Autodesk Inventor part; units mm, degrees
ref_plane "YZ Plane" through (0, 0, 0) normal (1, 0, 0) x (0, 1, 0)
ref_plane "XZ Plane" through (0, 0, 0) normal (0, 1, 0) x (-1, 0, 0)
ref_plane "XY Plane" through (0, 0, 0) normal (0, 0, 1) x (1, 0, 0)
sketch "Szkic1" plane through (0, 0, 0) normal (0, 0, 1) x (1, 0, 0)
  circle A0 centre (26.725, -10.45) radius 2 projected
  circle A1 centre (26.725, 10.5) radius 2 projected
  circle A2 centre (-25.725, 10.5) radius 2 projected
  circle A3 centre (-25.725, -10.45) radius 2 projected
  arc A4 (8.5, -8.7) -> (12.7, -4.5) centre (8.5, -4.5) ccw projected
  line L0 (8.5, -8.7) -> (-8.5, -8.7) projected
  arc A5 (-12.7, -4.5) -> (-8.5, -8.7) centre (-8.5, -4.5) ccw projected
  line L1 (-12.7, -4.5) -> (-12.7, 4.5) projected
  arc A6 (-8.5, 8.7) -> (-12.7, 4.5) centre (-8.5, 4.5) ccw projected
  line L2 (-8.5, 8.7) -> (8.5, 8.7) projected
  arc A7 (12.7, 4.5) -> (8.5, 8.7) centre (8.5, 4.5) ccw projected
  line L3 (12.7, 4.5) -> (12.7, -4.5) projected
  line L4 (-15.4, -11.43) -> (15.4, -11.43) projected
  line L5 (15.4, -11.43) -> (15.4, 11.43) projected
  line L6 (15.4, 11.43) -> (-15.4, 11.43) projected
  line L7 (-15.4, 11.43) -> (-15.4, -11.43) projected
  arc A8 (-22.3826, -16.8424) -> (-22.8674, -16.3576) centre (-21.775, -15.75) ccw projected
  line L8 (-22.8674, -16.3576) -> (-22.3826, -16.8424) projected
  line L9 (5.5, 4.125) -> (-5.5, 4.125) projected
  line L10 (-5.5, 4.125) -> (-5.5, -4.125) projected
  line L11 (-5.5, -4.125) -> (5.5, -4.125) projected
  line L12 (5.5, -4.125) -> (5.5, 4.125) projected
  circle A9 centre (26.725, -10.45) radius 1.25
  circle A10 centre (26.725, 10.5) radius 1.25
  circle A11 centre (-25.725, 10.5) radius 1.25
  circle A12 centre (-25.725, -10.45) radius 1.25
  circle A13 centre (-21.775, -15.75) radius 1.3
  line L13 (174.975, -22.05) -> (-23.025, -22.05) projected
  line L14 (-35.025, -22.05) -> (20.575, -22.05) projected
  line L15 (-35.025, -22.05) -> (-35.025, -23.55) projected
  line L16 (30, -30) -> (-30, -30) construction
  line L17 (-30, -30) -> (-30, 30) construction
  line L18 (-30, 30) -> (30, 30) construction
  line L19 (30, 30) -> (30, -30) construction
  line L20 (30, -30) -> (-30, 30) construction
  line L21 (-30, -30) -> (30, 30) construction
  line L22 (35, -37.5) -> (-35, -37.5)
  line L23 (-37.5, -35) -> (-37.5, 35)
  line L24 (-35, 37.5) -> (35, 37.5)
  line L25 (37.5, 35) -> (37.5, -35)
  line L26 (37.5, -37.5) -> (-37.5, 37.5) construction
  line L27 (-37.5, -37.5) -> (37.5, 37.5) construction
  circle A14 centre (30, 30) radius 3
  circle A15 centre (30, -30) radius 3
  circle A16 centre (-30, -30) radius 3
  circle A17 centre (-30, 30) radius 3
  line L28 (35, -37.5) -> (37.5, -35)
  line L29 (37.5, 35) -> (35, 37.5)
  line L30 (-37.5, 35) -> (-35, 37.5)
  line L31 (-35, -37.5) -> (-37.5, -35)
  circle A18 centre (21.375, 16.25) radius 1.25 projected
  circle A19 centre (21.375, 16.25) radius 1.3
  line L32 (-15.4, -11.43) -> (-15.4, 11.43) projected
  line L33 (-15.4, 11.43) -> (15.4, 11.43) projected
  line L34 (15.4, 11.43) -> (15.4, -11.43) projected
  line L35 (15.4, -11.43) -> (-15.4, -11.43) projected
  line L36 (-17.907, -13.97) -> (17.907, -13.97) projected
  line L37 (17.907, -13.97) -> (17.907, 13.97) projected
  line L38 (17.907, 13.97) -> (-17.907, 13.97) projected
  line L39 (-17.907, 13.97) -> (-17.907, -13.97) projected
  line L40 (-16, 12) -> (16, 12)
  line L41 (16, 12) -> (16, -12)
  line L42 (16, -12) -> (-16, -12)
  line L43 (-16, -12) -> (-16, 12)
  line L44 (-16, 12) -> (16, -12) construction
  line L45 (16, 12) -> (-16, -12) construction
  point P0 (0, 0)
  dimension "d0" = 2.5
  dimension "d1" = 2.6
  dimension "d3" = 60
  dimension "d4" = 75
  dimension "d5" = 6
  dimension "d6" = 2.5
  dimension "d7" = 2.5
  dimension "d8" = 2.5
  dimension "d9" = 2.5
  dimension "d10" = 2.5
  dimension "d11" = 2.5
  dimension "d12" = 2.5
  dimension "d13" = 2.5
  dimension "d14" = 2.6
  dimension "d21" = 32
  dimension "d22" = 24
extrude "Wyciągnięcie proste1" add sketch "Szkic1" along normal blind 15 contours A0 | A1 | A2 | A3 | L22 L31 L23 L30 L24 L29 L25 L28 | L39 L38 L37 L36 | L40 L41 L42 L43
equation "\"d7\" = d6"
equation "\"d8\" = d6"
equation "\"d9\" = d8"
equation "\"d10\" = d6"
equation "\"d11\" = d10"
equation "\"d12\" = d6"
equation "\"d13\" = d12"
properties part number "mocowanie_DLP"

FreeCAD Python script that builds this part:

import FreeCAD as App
import Part
import Sketcher

V = App.Vector
Q = App.Units.Quantity

doc = App.newDocument("Part")
params = doc.addObject("Spreadsheet::Sheet", "Params")
for row, (alias, value) in enumerate([
    ("sketch1_diameter", "6 mm"),
    ("sketch1_diameter2", "2.5 mm"),
    ("sketch1_diameter3", "2.6 mm"),
    ("sketch1_width", "70 mm"),
    ("sketch1_width2", "30.8 mm"),
    ("pad1_length", "15 mm"),
], start=1):
    params.set(f"A{row}", alias)
    params.set(f"B{row}", "=" + value)
    params.setAlias(f"B{row}", alias)

body = doc.addObject("PartDesign::Body", "Body")

# Sketch on XY plane
sketch1 = doc.addObject("Sketcher::SketchObject", "Sketch")
body.addObject(sketch1)
sketch1.AttachmentSupport = (doc.XY_Plane, [""])
sketch1.MapMode = "FlatFace"
sketch1.addGeometry([
    Part.LineSegment(V(-35, -37.5, 0), V(35, -37.5, 0)),  # 0
    Part.LineSegment(V(35, -37.5, 0), V(37.5, -35, 0)),  # 1
    Part.LineSegment(V(37.5, -35, 0), V(37.5, 35, 0)),  # 2
    Part.LineSegment(V(37.5, 35, 0), V(35, 37.5, 0)),  # 3
    Part.LineSegment(V(35, 37.5, 0), V(-35, 37.5, 0)),  # 4
    Part.LineSegment(V(-35, 37.5, 0), V(-37.5, 35, 0)),  # 5
    Part.LineSegment(V(-37.5, 35, 0), V(-37.5, -35, 0)),  # 6
    Part.LineSegment(V(-37.5, -35, 0), V(-35, -37.5, 0)),  # 7
    Part.Circle(V(26.725, -10.45, 0), V(0, 0, 1), 1.25),  # 8
    Part.Circle(V(-30, -30, 0), V(0, 0, 1), 3),  # 9
    Part.Circle(V(-21.775, -15.75, 0), V(0, 0, 1), 1.3),  # 10
    Part.Circle(V(30, -30, 0), V(0, 0, 1), 3),  # 11
    Part.Circle(V(30, 30, 0), V(0, 0, 1), 3),  # 12
    Part.Circle(V(-30, 30, 0), V(0, 0, 1), 3),  # 13
    Part.Circle(V(21.375, 16.25, 0), V(0, 0, 1), 1.3),  # 14
    Part.Circle(V(-25.725, -10.45, 0), V(0, 0, 1), 1.25),  # 15
    Part.Circle(V(-25.725, 10.5, 0), V(0, 0, 1), 1.25),  # 16
    Part.Circle(V(26.725, 10.5, 0), V(0, 0, 1), 1.25),  # 17
    Part.LineSegment(V(15.4, -11.43, 0), V(-15.4, -11.43, 0)),  # 18
    Part.LineSegment(V(-15.4, -11.43, 0), V(-15.4, 11.43, 0)),  # 19
    Part.LineSegment(V(-15.4, 11.43, 0), V(15.4, 11.43, 0)),  # 20
    Part.LineSegment(V(15.4, 11.43, 0), V(15.4, -11.43, 0)),  # 21
], False)
sketch1.addConstraint([
    Sketcher.Constraint("Coincident", 0, 2, 1, 1),
    Sketcher.Constraint("Coincident", 1, 2, 2, 1),
    Sketcher.Constraint("Coincident", 2, 2, 3, 1),
    Sketcher.Constraint("Coincident", 3, 2, 4, 1),
    Sketcher.Constraint("Coincident", 4, 2, 5, 1),
    Sketcher.Constraint("Coincident", 5, 2, 6, 1),
    Sketcher.Constraint("Coincident", 6, 2, 7, 1),
    Sketcher.Constraint("Coincident", 7, 2, 0, 1),
    Sketcher.Constraint("Coincident", 18, 2, 19, 1),
    Sketcher.Constraint("Coincident", 19, 2, 20, 1),
    Sketcher.Constraint("Coincident", 20, 2, 21, 1),
    Sketcher.Constraint("Coincident", 21, 2, 18, 1),
    Sketcher.Constraint("Horizontal", 0),
    Sketcher.Constraint("Vertical", 2),
    Sketcher.Constraint("Horizontal", 4),
    Sketcher.Constraint("Vertical", 6),
    Sketcher.Constraint("Horizontal", 18),
    Sketcher.Constraint("Vertical", 19),
    Sketcher.Constraint("Horizontal", 20),
    Sketcher.Constraint("Vertical", 21),
    Sketcher.Constraint("Equal", 9, 11),
    Sketcher.Constraint("Equal", 11, 12),
    Sketcher.Constraint("Equal", 12, 13),
    Sketcher.Constraint("Equal", 10, 14),
    Sketcher.Constraint("Equal", 8, 15),
    Sketcher.Constraint("Equal", 15, 16),
    Sketcher.Constraint("Equal", 16, 17),
    Sketcher.Constraint("Symmetric", 9, 3, 12, 3, -1, 1),
    Sketcher.Constraint("Symmetric", 11, 3, 13, 3, -1, 1),
    Sketcher.Constraint("Symmetric", 0, 2, 4, 2, -1, 1),
    Sketcher.Constraint("Symmetric", 1, 2, 5, 2, -1, 1),
    Sketcher.Constraint("Symmetric", 18, 2, 20, 2, -1, 1),
    Sketcher.Constraint("Symmetric", 9, 3, 11, 3, -2),
    Sketcher.Constraint("Perpendicular", 1, 3),
    Sketcher.Constraint("Perpendicular", 5, 7),
    Sketcher.Constraint("Horizontal", 8, 3, 15, 3),
    Sketcher.Constraint("Horizontal", 16, 3, 17, 3),
    Sketcher.Constraint("Horizontal", 2, 2, 5, 2),
    Sketcher.Constraint("Horizontal", 1, 2, 6, 2),
    Sketcher.Constraint("Vertical", 15, 3, 16, 3),
    Sketcher.Constraint("Vertical", 8, 3, 17, 3),
    Sketcher.Constraint("Vertical", 0, 2, 3, 2),
    Sketcher.Constraint("Equal", 4, 2),
    Sketcher.Constraint("Diameter", 9, Q("6 mm")),
    Sketcher.Constraint("Diameter", 8, Q("2.5 mm")),
    Sketcher.Constraint("Diameter", 10, Q("2.6 mm")),
    Sketcher.Constraint("DistanceX", 9, 3, 11, 3, Q("60 mm")),
    Sketcher.Constraint("DistanceY", 11, 3, 12, 3, Q("60 mm")),
    Sketcher.Constraint("DistanceY", 10, 3, 14, 3, Q("32 mm")),
    Sketcher.Constraint("DistanceX", 0, 2, 1, 2, Q("2.5 mm")),
    Sketcher.Constraint("DistanceX", 0, 1, 0, 2, Q("70 mm")),
    Sketcher.Constraint("DistanceX", 18, 2, 18, 1, Q("30.8 mm")),
    Sketcher.Constraint("DistanceY", 0, 2, 17, 3, Q("48 mm")),
    Sketcher.Constraint("DistanceY", 19, 1, 19, 2, Q("22.86 mm")),
    Sketcher.Constraint("DistanceX", 10, 3, 8, 3, Q("48.5 mm")),
    Sketcher.Constraint("DistanceY", 10, 3, 8, 3, Q("5.3 mm")),
    Sketcher.Constraint("DistanceX", 15, 3, 14, 3, Q("47.1 mm")),
    Sketcher.Constraint("DistanceY", 8, 3, -1, 1, Q("10.45 mm")),
    Sketcher.Constraint("DistanceX", 14, 3, 8, 3, Q("5.35 mm")),
    Sketcher.Constraint("DistanceX", -1, 1, 8, 3, Q("26.725 mm")),
])
sketch1.setExpression("Constraints[43]", "Params.sketch1_diameter")
sketch1.setExpression("Constraints[44]", "Params.sketch1_diameter2")
sketch1.setExpression("Constraints[45]", "Params.sketch1_diameter3")
sketch1.setExpression("Constraints[50]", "Params.sketch1_width")
sketch1.setExpression("Constraints[51]", "Params.sketch1_width2")
pad1 = doc.addObject("PartDesign::Pad", "Pad")
body.addObject(pad1)
pad1.Profile = sketch1
pad1.setExpression("Length", "Params.pad1_length")

doc.recompute()
